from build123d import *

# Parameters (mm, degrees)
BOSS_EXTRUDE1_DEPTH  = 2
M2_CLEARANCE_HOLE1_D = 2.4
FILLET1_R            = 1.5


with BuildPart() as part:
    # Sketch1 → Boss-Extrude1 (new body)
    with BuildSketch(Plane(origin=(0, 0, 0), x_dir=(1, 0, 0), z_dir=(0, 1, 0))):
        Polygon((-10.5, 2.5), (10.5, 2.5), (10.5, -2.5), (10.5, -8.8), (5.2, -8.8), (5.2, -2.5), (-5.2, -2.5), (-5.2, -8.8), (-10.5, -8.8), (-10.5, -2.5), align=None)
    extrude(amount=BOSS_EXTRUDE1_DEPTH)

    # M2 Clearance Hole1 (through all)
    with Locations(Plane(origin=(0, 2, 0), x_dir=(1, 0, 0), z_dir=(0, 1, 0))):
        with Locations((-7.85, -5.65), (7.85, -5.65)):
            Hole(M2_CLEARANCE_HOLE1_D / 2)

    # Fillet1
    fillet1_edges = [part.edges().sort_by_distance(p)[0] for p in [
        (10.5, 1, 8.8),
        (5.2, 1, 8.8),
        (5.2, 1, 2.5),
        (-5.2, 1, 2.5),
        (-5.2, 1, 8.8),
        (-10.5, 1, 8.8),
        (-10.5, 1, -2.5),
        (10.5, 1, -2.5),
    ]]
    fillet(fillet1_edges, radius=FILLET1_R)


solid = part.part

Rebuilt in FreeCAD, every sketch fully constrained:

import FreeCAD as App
import Part
import Sketcher
from FreeCAD import Vector


def edges_at(feature, points):
    """Names of the edges that pass closest to the given points."""
    edges = feature.Shape.Edges
    near = lambda p: min(range(len(edges)), key=lambda i: edges[i].distToShape(Part.Vertex(*p))[0])
    return sorted({f"Edge{near(p) + 1}" for p in points})


def add_polygon(sketch, points):
    """Adds a closed chain of lines whose ends are joined by coincident constraints."""
    first, n = sketch.GeometryCount, len(points)
    for a, b in zip(points, points[1:] + points[:1]):
        sketch.addGeometry(Part.LineSegment(App.Vector(*a, 0), App.Vector(*b, 0)), False)
    for i in range(n):
        sketch.addConstraint(Sketcher.Constraint("Coincident", first + i, 2, first + (i + 1) % n, 1))

doc = App.newDocument("Part")
body = doc.addObject("PartDesign::Body", "Body")

sketch1 = body.newObject("Sketcher::SketchObject", "Sketch")
sketch1.AttachmentSupport = (doc.getObject("XZ_Plane"), [""])
sketch1.MapMode = "FlatFace"
add_polygon(sketch1, [(10.5, -2.5), (-10.5, -2.5), (-10.5, 8.8), (-5.2, 8.8), (-5.2, 2.5), (5.2, 2.5), (5.2, 8.8), (10.5, 8.8)])
sketch1.addConstraint([
    Sketcher.Constraint("Horizontal", 0),
    Sketcher.Constraint("Vertical", 1),
    Sketcher.Constraint("Horizontal", 2),
    Sketcher.Constraint("Vertical", 3),
    Sketcher.Constraint("Horizontal", 4),
    Sketcher.Constraint("Vertical", 5),
    Sketcher.Constraint("Horizontal", 6),
    Sketcher.Constraint("Vertical", 7),
    Sketcher.Constraint("Symmetric", 2, 2, 5, 2, -2),
    Sketcher.Constraint("Equal", 2, 6),
    Sketcher.Constraint("DistanceX", 0, 2, 0, 1, 21.0),
    Sketcher.Constraint("DistanceX", 2, 1, 2, 2, 5.3),
    Sketcher.Constraint("DistanceY", 1, 1, 1, 2, 11.3),
    Sketcher.Constraint("DistanceY", 3, 2, 3, 1, 6.3),
    Sketcher.Constraint("DistanceY", 0, 2, -1, 1, 2.5),
])
pad1 = body.newObject("PartDesign::Pad", "Pad")
pad1.Profile = sketch1
pad1.Length = 2
pad1.Reversed = True

sketch2 = body.newObject("Sketcher::SketchObject", "Sketch001")
sketch2.AttachmentSupport = (doc.getObject("XZ_Plane"), [""])
sketch2.MapMode = "FlatFace"
sketch2.AttachmentOffset = App.Placement(Vector(0, 0, -2), App.Rotation())
sketch2.addGeometry([
    Part.Circle(Vector(-7.85, 5.65, 0), Vector(0, 0, 1), 1.2),
    Part.Circle(Vector(7.85, 5.65, 0), Vector(0, 0, 1), 1.2),
], False)
sketch2.addConstraint([
    Sketcher.Constraint("Equal", 0, 1),
    Sketcher.Constraint("Symmetric", 0, 3, 1, 3, -2),
    Sketcher.Constraint("Diameter", 0, 2.4),
    Sketcher.Constraint("DistanceX", 0, 3, 1, 3, 15.7),
    Sketcher.Constraint("DistanceY", -1, 1, 0, 3, 5.65),
])
doc.recompute()
hole = body.newObject("PartDesign::Hole", "Hole")
hole.Profile = sketch2
hole.ThreadType = "None"
hole.Diameter = 2.4
hole.DepthType = "ThroughAll"
hole.Reversed = True
doc.recompute()

fillet = body.newObject("PartDesign::Fillet", "Fillet")
fillet.Base = (hole, edges_at(hole, [
    (10.5, 1, 8.8),
    (5.2, 1, 8.8),
    (5.2, 1, 2.5),
    (-5.2, 1, 2.5),
    (-5.2, 1, 8.8),
    (-10.5, 1, 8.8),
    (-10.5, 1, -2.5),
    (10.5, 1, -2.5),
]))
fillet.Radius = 1.5

doc.recompute()
